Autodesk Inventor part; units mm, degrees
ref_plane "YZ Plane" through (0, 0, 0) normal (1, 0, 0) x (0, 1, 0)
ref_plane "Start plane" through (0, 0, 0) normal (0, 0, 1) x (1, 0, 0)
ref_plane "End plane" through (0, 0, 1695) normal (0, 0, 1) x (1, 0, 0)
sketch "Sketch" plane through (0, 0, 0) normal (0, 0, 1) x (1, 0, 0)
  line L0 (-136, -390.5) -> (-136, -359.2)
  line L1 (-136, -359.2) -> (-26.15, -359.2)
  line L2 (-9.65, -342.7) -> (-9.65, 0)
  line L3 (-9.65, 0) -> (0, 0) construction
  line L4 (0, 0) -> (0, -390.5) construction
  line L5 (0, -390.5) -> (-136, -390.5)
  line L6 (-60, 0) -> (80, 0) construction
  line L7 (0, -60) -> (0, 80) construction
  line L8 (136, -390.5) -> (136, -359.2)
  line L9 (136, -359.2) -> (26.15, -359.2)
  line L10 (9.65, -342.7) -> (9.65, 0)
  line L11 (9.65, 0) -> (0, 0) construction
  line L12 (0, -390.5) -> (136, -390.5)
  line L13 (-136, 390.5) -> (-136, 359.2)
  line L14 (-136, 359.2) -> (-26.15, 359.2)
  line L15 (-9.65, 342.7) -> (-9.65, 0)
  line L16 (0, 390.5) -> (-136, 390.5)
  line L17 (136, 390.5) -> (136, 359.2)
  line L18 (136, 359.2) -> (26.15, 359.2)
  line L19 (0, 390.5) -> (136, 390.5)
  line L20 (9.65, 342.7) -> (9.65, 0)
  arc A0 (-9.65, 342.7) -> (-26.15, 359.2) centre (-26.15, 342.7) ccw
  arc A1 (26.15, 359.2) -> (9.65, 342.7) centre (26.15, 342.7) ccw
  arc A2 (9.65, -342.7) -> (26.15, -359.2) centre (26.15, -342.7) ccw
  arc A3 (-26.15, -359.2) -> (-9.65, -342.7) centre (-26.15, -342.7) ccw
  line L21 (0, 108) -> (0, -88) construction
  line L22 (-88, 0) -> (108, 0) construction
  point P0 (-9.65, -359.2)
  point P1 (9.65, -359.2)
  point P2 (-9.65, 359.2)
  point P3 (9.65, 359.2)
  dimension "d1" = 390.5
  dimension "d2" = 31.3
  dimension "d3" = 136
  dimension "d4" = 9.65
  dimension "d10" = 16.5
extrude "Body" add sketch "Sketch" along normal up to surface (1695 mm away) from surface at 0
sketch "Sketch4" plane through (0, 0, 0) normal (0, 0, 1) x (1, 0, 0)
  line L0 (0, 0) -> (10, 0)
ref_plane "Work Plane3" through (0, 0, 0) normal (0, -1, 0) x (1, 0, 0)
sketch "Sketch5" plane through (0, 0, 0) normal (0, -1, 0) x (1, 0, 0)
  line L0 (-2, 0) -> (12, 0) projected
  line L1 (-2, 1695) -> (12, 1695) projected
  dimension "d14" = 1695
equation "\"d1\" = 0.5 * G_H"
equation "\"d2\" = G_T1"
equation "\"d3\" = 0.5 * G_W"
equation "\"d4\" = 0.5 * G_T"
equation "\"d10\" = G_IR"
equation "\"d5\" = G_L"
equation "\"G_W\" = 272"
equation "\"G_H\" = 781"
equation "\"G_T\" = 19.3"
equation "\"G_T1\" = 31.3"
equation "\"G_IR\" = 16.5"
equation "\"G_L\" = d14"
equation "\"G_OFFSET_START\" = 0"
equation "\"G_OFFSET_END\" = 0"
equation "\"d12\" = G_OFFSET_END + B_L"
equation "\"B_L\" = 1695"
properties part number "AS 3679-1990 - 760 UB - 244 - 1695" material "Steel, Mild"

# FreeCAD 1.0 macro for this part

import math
import FreeCAD as App
import Part
import Sketcher
from FreeCAD import Vector
Q = App.Units.Quantity

doc = App.newDocument("Part")
params = doc.addObject("Spreadsheet::Sheet", "Params")
for row, (alias, value) in enumerate([
    ("sketch1_radius", "16.5 mm"),
    ("sketch1_height", "31.3 mm"),
    ("pad1_length", "1695 mm"),
], start=1):
    params.set(f"A{row}", alias)
    params.set(f"B{row}", "=" + value)
    params.setAlias(f"B{row}", alias)

body = doc.addObject("PartDesign::Body", "Body")

sketch1 = doc.addObject("Sketcher::SketchObject", "Sketch")
body.addObject(sketch1)
sketch1.AttachmentSupport = (doc.XY_Plane, [""])
sketch1.MapMode = "FlatFace"
sketch1.addGeometry(Part.LineSegment(Vector(-136, -359, 0), Vector(-136, -390, 0)), False)
sketch1.addGeometry(Part.LineSegment(Vector(-136, -390, 0), Vector(136, -390, 0)), False)
sketch1.addGeometry(Part.LineSegment(Vector(136, -390, 0), Vector(136, -359, 0)), False)
sketch1.addGeometry(Part.LineSegment(Vector(136, -359, 0), Vector(26, -359, 0)), False)
sketch1.addGeometry(Part.ArcOfCircle(Part.Circle(Vector(26, -343, 0), Vector(0, 0, 1), 16), math.radians(180), math.radians(270)), False)
sketch1.addGeometry(Part.LineSegment(Vector(10, -343, 0), Vector(10, 343, 0)), False)
sketch1.addGeometry(Part.ArcOfCircle(Part.Circle(Vector(26, 343, 0), Vector(0, 0, 1), 16), math.radians(90), math.radians(180)), False)
sketch1.addGeometry(Part.LineSegment(Vector(26, 359, 0), Vector(136, 359, 0)), False)
sketch1.addGeometry(Part.LineSegment(Vector(136, 359, 0), Vector(136, 390, 0)), False)
sketch1.addGeometry(Part.LineSegment(Vector(136, 390, 0), Vector(-136, 390, 0)), False)
sketch1.addGeometry(Part.LineSegment(Vector(-136, 390, 0), Vector(-136, 359, 0)), False)
sketch1.addGeometry(Part.LineSegment(Vector(-136, 359, 0), Vector(-26, 359, 0)), False)
sketch1.addGeometry(Part.ArcOfCircle(Part.Circle(Vector(-26, 343, 0), Vector(0, 0, 1), 16), math.radians(0), math.radians(90)), False)
sketch1.addGeometry(Part.LineSegment(Vector(-10, 343, 0), Vector(-10, -343, 0)), False)
sketch1.addGeometry(Part.ArcOfCircle(Part.Circle(Vector(-26, -343, 0), Vector(0, 0, 1), 16), math.radians(-90), math.radians(0)), False)
sketch1.addGeometry(Part.LineSegment(Vector(-26, -359, 0), Vector(-136, -359, 0)), False)
sketch1.addConstraint(Sketcher.Constraint("Coincident", 0, 2, 1, 1))
sketch1.addConstraint(Sketcher.Constraint("Coincident", 1, 2, 2, 1))
sketch1.addConstraint(Sketcher.Constraint("Coincident", 2, 2, 3, 1))
sketch1.addConstraint(Sketcher.Constraint("Tangent", 3, 2, 4, 2))
sketch1.addConstraint(Sketcher.Constraint("Tangent", 4, 1, 5, 1))
sketch1.addConstraint(Sketcher.Constraint("Tangent", 5, 2, 6, 2))
sketch1.addConstraint(Sketcher.Constraint("Tangent", 6, 1, 7, 1))
sketch1.addConstraint(Sketcher.Constraint("Coincident", 7, 2, 8, 1))
sketch1.addConstraint(Sketcher.Constraint("Coincident", 8, 2, 9, 1))
sketch1.addConstraint(Sketcher.Constraint("Coincident", 9, 2, 10, 1))
sketch1.addConstraint(Sketcher.Constraint("Coincident", 10, 2, 11, 1))
sketch1.addConstraint(Sketcher.Constraint("Tangent", 11, 2, 12, 2))
sketch1.addConstraint(Sketcher.Constraint("Tangent", 12, 1, 13, 1))
sketch1.addConstraint(Sketcher.Constraint("Tangent", 13, 2, 14, 2))
sketch1.addConstraint(Sketcher.Constraint("Tangent", 14, 1, 15, 1))
sketch1.addConstraint(Sketcher.Constraint("Coincident", 15, 2, 0, 1))
sketch1.addConstraint(Sketcher.Constraint("Vertical", 0))
sketch1.addConstraint(Sketcher.Constraint("Horizontal", 1))
sketch1.addConstraint(Sketcher.Constraint("Vertical", 2))
sketch1.addConstraint(Sketcher.Constraint("Horizontal", 3))
sketch1.addConstraint(Sketcher.Constraint("Vertical", 5))
sketch1.addConstraint(Sketcher.Constraint("Horizontal", 7))
sketch1.addConstraint(Sketcher.Constraint("Vertical", 8))
sketch1.addConstraint(Sketcher.Constraint("Horizontal", 9))
sketch1.addConstraint(Sketcher.Constraint("Vertical", 10))
sketch1.addConstraint(Sketcher.Constraint("Horizontal", 11))
sketch1.addConstraint(Sketcher.Constraint("Vertical", 13))
sketch1.addConstraint(Sketcher.Constraint("Horizontal", 15))
sketch1.addConstraint(Sketcher.Constraint("Equal", 4, 6))
sketch1.addConstraint(Sketcher.Constraint("Equal", 6, 12))
sketch1.addConstraint(Sketcher.Constraint("Equal", 12, 14))
sketch1.addConstraint(Sketcher.Constraint("Symmetric", 4, 3, 12, 3, -1, 1))
sketch1.addConstraint(Sketcher.Constraint("Symmetric", 0, 2, 8, 2, -1, 1))
sketch1.addConstraint(Sketcher.Constraint("Symmetric", 7, 2, 10, 2, -2))
sketch1.addConstraint(Sketcher.Constraint("Symmetric", 2, 2, 15, 2, -2))
sketch1.addConstraint(Sketcher.Constraint("Radius", 4, Q("16.5 mm")))
sketch1.addConstraint(Sketcher.Constraint("DistanceY", 0, 2, 0, 1, Q("31.3 mm")))
sketch1.addConstraint(Sketcher.Constraint("DistanceX", 0, 2, -1, 1, Q("136 mm")))
sketch1.addConstraint(Sketcher.Constraint("DistanceY", 0, 2, -1, 1, Q("390.5 mm")))
sketch1.addConstraint(Sketcher.Constraint("DistanceX", -1, 1, 4, 1, Q("9.65 mm")))
sketch1.setExpression("Constraints[35]", "Params.sketch1_radius")
sketch1.setExpression("Constraints[36]", "Params.sketch1_height")
pad1 = doc.addObject("PartDesign::Pad", "Pad")
body.addObject(pad1)
pad1.Profile = sketch1
pad1.setExpression("Length", "Params.pad1_length")

doc.recompute()
